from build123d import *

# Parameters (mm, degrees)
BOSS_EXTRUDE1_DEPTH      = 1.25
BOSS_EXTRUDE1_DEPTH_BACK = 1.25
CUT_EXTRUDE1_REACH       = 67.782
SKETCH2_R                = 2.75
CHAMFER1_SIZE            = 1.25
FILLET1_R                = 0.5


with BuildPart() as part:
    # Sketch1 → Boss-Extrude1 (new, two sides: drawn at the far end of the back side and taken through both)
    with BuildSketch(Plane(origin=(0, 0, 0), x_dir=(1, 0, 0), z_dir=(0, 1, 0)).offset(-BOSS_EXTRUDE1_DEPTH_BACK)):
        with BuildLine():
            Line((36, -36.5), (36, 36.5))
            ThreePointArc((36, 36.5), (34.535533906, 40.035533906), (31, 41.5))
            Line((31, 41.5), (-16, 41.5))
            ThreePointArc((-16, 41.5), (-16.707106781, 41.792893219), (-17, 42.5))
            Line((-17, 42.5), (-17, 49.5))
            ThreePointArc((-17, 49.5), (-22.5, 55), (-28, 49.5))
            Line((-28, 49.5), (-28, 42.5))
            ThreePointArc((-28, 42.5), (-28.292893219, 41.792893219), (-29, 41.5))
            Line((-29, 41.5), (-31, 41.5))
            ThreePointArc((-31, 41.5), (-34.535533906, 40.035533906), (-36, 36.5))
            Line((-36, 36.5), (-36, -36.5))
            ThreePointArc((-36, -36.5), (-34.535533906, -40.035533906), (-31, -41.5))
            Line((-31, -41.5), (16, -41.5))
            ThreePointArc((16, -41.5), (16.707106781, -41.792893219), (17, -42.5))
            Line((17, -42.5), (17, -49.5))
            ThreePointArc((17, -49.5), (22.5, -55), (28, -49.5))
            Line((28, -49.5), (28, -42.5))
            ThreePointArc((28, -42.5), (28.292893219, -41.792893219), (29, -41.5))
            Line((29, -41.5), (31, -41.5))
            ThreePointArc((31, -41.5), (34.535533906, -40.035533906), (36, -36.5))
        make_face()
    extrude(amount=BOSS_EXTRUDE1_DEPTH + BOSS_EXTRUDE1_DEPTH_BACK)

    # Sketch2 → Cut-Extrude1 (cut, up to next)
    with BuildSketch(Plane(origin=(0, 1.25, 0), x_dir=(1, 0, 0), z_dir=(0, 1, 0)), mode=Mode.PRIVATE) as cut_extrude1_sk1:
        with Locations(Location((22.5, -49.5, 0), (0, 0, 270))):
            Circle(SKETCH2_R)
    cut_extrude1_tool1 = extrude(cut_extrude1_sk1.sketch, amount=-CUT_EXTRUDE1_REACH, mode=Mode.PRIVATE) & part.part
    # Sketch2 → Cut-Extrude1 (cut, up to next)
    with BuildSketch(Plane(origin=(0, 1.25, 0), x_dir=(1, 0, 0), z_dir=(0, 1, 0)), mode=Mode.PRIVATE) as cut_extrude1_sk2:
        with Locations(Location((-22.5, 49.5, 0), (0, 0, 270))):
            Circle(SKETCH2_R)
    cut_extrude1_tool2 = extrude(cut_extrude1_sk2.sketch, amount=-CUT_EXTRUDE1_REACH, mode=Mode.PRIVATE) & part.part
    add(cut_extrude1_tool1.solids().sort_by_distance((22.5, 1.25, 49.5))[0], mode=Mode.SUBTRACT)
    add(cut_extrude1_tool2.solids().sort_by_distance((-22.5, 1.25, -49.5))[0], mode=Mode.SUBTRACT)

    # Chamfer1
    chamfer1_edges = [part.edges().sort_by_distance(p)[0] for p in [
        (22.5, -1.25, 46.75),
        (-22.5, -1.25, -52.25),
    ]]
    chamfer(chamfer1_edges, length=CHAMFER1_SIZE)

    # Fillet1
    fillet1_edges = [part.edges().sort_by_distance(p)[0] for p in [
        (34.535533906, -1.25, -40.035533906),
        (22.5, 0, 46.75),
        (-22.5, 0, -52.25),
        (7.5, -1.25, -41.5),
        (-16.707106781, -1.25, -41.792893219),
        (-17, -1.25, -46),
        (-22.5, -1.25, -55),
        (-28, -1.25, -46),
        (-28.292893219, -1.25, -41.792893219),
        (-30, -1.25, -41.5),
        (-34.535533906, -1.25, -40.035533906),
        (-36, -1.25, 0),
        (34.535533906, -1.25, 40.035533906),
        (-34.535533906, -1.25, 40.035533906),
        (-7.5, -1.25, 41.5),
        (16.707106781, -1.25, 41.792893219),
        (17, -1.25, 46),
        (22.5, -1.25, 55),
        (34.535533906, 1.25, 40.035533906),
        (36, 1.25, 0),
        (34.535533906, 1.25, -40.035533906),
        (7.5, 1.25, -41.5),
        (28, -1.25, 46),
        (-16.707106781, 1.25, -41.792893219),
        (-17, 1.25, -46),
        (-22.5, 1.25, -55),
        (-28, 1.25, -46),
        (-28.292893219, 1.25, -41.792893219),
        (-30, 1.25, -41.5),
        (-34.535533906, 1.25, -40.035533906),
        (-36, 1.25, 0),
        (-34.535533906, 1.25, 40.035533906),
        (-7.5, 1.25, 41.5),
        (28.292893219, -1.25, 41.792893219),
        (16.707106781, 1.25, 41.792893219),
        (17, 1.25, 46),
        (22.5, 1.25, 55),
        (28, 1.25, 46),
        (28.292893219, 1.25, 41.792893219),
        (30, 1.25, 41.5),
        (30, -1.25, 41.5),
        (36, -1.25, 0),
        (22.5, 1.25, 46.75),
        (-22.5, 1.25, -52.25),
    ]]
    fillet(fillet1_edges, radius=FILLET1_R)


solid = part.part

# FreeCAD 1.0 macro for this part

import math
import FreeCAD as App
import Part
import Sketcher


def edges_at(feature, points):
    """Names of the edges that pass closest to the given points."""
    edges = feature.Shape.Edges
    near = lambda p: min(range(len(edges)), key=lambda i: edges[i].distToShape(Part.Vertex(*p))[0])
    return sorted({f"Edge{near(p) + 1}" for p in points})

doc = App.newDocument("Part")
body = doc.addObject("PartDesign::Body", "Body")

sketch1 = body.newObject("Sketcher::SketchObject", "Sketch")
sketch1.AttachmentSupport = (doc.getObject("XZ_Plane"), [""])
sketch1.MapMode = "FlatFace"
sketch1.addGeometry(Part.LineSegment(App.Vector(36, 36.5, 0), App.Vector(36, -36.5, 0)), False)
sketch1.addGeometry(Part.ArcOfCircle(Part.Circle(App.Vector(31, -36.5, 0), App.Vector(0, 0, 1), 5), math.radians(-90), math.radians(0)), False)
sketch1.addGeometry(Part.LineSegment(App.Vector(31, -41.5, 0), App.Vector(-16, -41.5, 0)), False)
sketch1.addGeometry(Part.ArcOfCircle(Part.Circle(App.Vector(-16, -42.5, 0), App.Vector(0, 0, 1), 1), math.radians(90), math.radians(180)), False)
sketch1.addGeometry(Part.LineSegment(App.Vector(-17, -42.5, 0), App.Vector(-17, -49.5, 0)), False)
sketch1.addGeometry(Part.ArcOfCircle(Part.Circle(App.Vector(-22.5, -49.5, 0), App.Vector(0, 0, 1), 5.5), math.radians(180), math.radians(360)), False)
sketch1.addGeometry(Part.LineSegment(App.Vector(-28, -49.5, 0), App.Vector(-28, -42.5, 0)), False)
sketch1.addGeometry(Part.ArcOfCircle(Part.Circle(App.Vector(-29, -42.5, 0), App.Vector(0, 0, 1), 1), math.radians(0), math.radians(90)), False)
sketch1.addGeometry(Part.LineSegment(App.Vector(-29, -41.5, 0), App.Vector(-31, -41.5, 0)), False)
sketch1.addGeometry(Part.ArcOfCircle(Part.Circle(App.Vector(-31, -36.5, 0), App.Vector(0, 0, 1), 5), math.radians(180), math.radians(270)), False)
sketch1.addGeometry(Part.LineSegment(App.Vector(-36, -36.5, 0), App.Vector(-36, 36.5, 0)), False)
sketch1.addGeometry(Part.ArcOfCircle(Part.Circle(App.Vector(-31, 36.5, 0), App.Vector(0, 0, 1), 5), math.radians(90), math.radians(180)), False)
sketch1.addGeometry(Part.LineSegment(App.Vector(-31, 41.5, 0), App.Vector(16, 41.5, 0)), False)
sketch1.addGeometry(Part.ArcOfCircle(Part.Circle(App.Vector(16, 42.5, 0), App.Vector(0, 0, 1), 1), math.radians(-90), math.radians(0)), False)
sketch1.addGeometry(Part.LineSegment(App.Vector(17, 42.5, 0), App.Vector(17, 49.5, 0)), False)
sketch1.addGeometry(Part.ArcOfCircle(Part.Circle(App.Vector(22.5, 49.5, 0), App.Vector(0, 0, 1), 5.5), math.radians(0), math.radians(180)), False)
sketch1.addGeometry(Part.LineSegment(App.Vector(28, 49.5, 0), App.Vector(28, 42.5, 0)), False)
sketch1.addGeometry(Part.ArcOfCircle(Part.Circle(App.Vector(29, 42.5, 0), App.Vector(0, 0, 1), 1), math.radians(-180), math.radians(-90)), False)
sketch1.addGeometry(Part.LineSegment(App.Vector(29, 41.5, 0), App.Vector(31, 41.5, 0)), False)
sketch1.addGeometry(Part.ArcOfCircle(Part.Circle(App.Vector(31, 36.5, 0), App.Vector(0, 0, 1), 5), math.radians(0), math.radians(90)), False)
sketch1.addConstraint(Sketcher.Constraint("Tangent", 0, 2, 1, 2))
sketch1.addConstraint(Sketcher.Constraint("Tangent", 1, 1, 2, 1))
sketch1.addConstraint(Sketcher.Constraint("Tangent", 2, 2, 3, 1))
sketch1.addConstraint(Sketcher.Constraint("Tangent", 3, 2, 4, 1))
sketch1.addConstraint(Sketcher.Constraint("Tangent", 4, 2, 5, 2))
sketch1.addConstraint(Sketcher.Constraint("Tangent", 5, 1, 6, 1))
sketch1.addConstraint(Sketcher.Constraint("Tangent", 6, 2, 7, 1))
sketch1.addConstraint(Sketcher.Constraint("Tangent", 7, 2, 8, 1))
sketch1.addConstraint(Sketcher.Constraint("Tangent", 8, 2, 9, 2))
sketch1.addConstraint(Sketcher.Constraint("Tangent", 9, 1, 10, 1))
sketch1.addConstraint(Sketcher.Constraint("Tangent", 10, 2, 11, 2))
sketch1.addConstraint(Sketcher.Constraint("Tangent", 11, 1, 12, 1))
sketch1.addConstraint(Sketcher.Constraint("Tangent", 12, 2, 13, 1))
sketch1.addConstraint(Sketcher.Constraint("Tangent", 13, 2, 14, 1))
sketch1.addConstraint(Sketcher.Constraint("Tangent", 14, 2, 15, 2))
sketch1.addConstraint(Sketcher.Constraint("Tangent", 15, 1, 16, 1))
sketch1.addConstraint(Sketcher.Constraint("Tangent", 16, 2, 17, 1))
sketch1.addConstraint(Sketcher.Constraint("Tangent", 17, 2, 18, 1))
sketch1.addConstraint(Sketcher.Constraint("Tangent", 18, 2, 19, 2))
sketch1.addConstraint(Sketcher.Constraint("Tangent", 19, 1, 0, 1))
sketch1.addConstraint(Sketcher.Constraint("Vertical", 0))
sketch1.addConstraint(Sketcher.Constraint("Horizontal", 2))
sketch1.addConstraint(Sketcher.Constraint("Vertical", 4))
sketch1.addConstraint(Sketcher.Constraint("Vertical", 6))
sketch1.addConstraint(Sketcher.Constraint("Horizontal", 8))
sketch1.addConstraint(Sketcher.Constraint("Vertical", 10))
sketch1.addConstraint(Sketcher.Constraint("Horizontal", 12))
sketch1.addConstraint(Sketcher.Constraint("Vertical", 14))
sketch1.addConstraint(Sketcher.Constraint("Vertical", 16))
sketch1.addConstraint(Sketcher.Constraint("Horizontal", 18))
sketch1.addConstraint(Sketcher.Constraint("Equal", 3, 7))
sketch1.addConstraint(Sketcher.Constraint("Equal", 1, 9))
sketch1.addConstraint(Sketcher.Constraint("Equal", 9, 11))
sketch1.addConstraint(Sketcher.Constraint("Equal", 7, 13))
sketch1.addConstraint(Sketcher.Constraint("Equal", 5, 15))
sketch1.addConstraint(Sketcher.Constraint("Equal", 13, 17))
sketch1.addConstraint(Sketcher.Constraint("Equal", 11, 19))
sketch1.addConstraint(Sketcher.Constraint("Symmetric", 1, 3, 11, 3, -1, 1))
sketch1.addConstraint(Sketcher.Constraint("Symmetric", 5, 3, 15, 3, -1, 1))
sketch1.addConstraint(Sketcher.Constraint("Horizontal", 3, 3, 7, 3))
sketch1.addConstraint(Sketcher.Constraint("Horizontal", 13, 3, 17, 3))
sketch1.addConstraint(Sketcher.Constraint("Radius", 1, 5.0))
sketch1.addConstraint(Sketcher.Constraint("Radius", 3, 1.0))
sketch1.addConstraint(Sketcher.Constraint("Radius", 5, 5.5))
sketch1.addConstraint(Sketcher.Constraint("DistanceX", 2, 2, 2, 1, 47.0))
sketch1.addConstraint(Sketcher.Constraint("DistanceX", 8, 2, 8, 1, 2.0))
sketch1.addConstraint(Sketcher.Constraint("DistanceY", 0, 2, 0, 1, 73.0))
sketch1.addConstraint(Sketcher.Constraint("DistanceY", 4, 2, 4, 1, 7.0))
pad1 = body.newObject("PartDesign::Pad", "Pad")
pad1.Profile = sketch1
pad1.Type = "TwoLengths"
pad1.Length = 1.25
pad1.Length2 = 1.25
pad1.Reversed = True

sketch2 = body.newObject("Sketcher::SketchObject", "Sketch001")
sketch2.AttachmentSupport = (doc.getObject("XZ_Plane"), [""])
sketch2.MapMode = "FlatFace"
sketch2.AttachmentOffset = App.Placement(App.Vector(0, 0, -1.25), App.Rotation())
sketch2.addGeometry(Part.Circle(App.Vector(22.5, 49.5, 0), App.Vector(0, 0, 1), 2.8), False)
sketch2.addConstraint(Sketcher.Constraint("Diameter", 0, 5.5))
sketch2.addConstraint(Sketcher.Constraint("DistanceX", -1, 1, 0, 3, 22.5))
sketch2.addConstraint(Sketcher.Constraint("DistanceY", -1, 1, 0, 3, 49.5))
pocket1 = body.newObject("PartDesign::Pocket", "Pocket")
pocket1.Profile = sketch2
pocket1.Type = "UpToFirst"
pocket1.Reversed = True

sketch3 = body.newObject("Sketcher::SketchObject", "Sketch002")
sketch3.AttachmentSupport = (doc.getObject("XZ_Plane"), [""])
sketch3.MapMode = "FlatFace"
sketch3.AttachmentOffset = App.Placement(App.Vector(0, 0, -1.25), App.Rotation())
sketch3.addGeometry(Part.Circle(App.Vector(-22.5, -49.5, 0), App.Vector(0, 0, 1), 2.8), False)
sketch3.addConstraint(Sketcher.Constraint("Diameter", 0, 5.5))
sketch3.addConstraint(Sketcher.Constraint("DistanceX", 0, 3, -1, 1, 22.5))
sketch3.addConstraint(Sketcher.Constraint("DistanceY", 0, 3, -1, 1, 49.5))
pocket2 = body.newObject("PartDesign::Pocket", "Pocket001")
pocket2.Profile = sketch3
pocket2.Type = "UpToFirst"
pocket2.Reversed = True
doc.recompute()

chamfer = body.newObject("PartDesign::Chamfer", "Chamfer")
chamfer.Base = (pocket2, edges_at(pocket2, [(22.5, -1.25, 46.75), (-22.5, -1.25, -52.25)]))
chamfer.Size = 1.25
doc.recompute()

fillet = body.newObject("PartDesign::Fillet", "Fillet")
fillet.Base = (chamfer, edges_at(chamfer, [
    (34.536, -1.25, -40.036),
    (22.5, 0, 46.75),
    (-22.5, 0, -52.25),
    (7.5, -1.25, -41.5),
    (-16.707, -1.25, -41.793),
    (-17, -1.25, -46),
    (-22.5, -1.25, -55),
    (-28, -1.25, -46),
    (-28.293, -1.25, -41.793),
    (-30, -1.25, -41.5),
    (-34.536, -1.25, -40.036),
    (-36, -1.25, 0),
    (34.536, -1.25, 40.036),
    (-34.536, -1.25, 40.036),
    (-7.5, -1.25, 41.5),
    (16.707, -1.25, 41.793),
    (17, -1.25, 46),
    (22.5, -1.25, 55),
    (34.536, 1.25, 40.036),
    (36, 1.25, 0),
    (34.536, 1.25, -40.036),
    (7.5, 1.25, -41.5),
    (28, -1.25, 46),
    (-16.707, 1.25, -41.793),
    (-17, 1.25, -46),
    (-22.5, 1.25, -55),
    (-28, 1.25, -46),
    (-28.293, 1.25, -41.793),
    (-30, 1.25, -41.5),
    (-34.536, 1.25, -40.036),
    (-36, 1.25, 0),
    (-34.536, 1.25, 40.036),
    (-7.5, 1.25, 41.5),
    (28.293, -1.25, 41.793),
    (16.707, 1.25, 41.793),
    (17, 1.25, 46),
    (22.5, 1.25, 55),
    (28, 1.25, 46),
    (28.293, 1.25, 41.793),
    (30, 1.25, 41.5),
    (30, -1.25, 41.5),
    (36, -1.25, 0),
    (22.5, 1.25, 46.75),
    (-22.5, 1.25, -52.25),
]))
fillet.Radius = 0.5

doc.recompute()
